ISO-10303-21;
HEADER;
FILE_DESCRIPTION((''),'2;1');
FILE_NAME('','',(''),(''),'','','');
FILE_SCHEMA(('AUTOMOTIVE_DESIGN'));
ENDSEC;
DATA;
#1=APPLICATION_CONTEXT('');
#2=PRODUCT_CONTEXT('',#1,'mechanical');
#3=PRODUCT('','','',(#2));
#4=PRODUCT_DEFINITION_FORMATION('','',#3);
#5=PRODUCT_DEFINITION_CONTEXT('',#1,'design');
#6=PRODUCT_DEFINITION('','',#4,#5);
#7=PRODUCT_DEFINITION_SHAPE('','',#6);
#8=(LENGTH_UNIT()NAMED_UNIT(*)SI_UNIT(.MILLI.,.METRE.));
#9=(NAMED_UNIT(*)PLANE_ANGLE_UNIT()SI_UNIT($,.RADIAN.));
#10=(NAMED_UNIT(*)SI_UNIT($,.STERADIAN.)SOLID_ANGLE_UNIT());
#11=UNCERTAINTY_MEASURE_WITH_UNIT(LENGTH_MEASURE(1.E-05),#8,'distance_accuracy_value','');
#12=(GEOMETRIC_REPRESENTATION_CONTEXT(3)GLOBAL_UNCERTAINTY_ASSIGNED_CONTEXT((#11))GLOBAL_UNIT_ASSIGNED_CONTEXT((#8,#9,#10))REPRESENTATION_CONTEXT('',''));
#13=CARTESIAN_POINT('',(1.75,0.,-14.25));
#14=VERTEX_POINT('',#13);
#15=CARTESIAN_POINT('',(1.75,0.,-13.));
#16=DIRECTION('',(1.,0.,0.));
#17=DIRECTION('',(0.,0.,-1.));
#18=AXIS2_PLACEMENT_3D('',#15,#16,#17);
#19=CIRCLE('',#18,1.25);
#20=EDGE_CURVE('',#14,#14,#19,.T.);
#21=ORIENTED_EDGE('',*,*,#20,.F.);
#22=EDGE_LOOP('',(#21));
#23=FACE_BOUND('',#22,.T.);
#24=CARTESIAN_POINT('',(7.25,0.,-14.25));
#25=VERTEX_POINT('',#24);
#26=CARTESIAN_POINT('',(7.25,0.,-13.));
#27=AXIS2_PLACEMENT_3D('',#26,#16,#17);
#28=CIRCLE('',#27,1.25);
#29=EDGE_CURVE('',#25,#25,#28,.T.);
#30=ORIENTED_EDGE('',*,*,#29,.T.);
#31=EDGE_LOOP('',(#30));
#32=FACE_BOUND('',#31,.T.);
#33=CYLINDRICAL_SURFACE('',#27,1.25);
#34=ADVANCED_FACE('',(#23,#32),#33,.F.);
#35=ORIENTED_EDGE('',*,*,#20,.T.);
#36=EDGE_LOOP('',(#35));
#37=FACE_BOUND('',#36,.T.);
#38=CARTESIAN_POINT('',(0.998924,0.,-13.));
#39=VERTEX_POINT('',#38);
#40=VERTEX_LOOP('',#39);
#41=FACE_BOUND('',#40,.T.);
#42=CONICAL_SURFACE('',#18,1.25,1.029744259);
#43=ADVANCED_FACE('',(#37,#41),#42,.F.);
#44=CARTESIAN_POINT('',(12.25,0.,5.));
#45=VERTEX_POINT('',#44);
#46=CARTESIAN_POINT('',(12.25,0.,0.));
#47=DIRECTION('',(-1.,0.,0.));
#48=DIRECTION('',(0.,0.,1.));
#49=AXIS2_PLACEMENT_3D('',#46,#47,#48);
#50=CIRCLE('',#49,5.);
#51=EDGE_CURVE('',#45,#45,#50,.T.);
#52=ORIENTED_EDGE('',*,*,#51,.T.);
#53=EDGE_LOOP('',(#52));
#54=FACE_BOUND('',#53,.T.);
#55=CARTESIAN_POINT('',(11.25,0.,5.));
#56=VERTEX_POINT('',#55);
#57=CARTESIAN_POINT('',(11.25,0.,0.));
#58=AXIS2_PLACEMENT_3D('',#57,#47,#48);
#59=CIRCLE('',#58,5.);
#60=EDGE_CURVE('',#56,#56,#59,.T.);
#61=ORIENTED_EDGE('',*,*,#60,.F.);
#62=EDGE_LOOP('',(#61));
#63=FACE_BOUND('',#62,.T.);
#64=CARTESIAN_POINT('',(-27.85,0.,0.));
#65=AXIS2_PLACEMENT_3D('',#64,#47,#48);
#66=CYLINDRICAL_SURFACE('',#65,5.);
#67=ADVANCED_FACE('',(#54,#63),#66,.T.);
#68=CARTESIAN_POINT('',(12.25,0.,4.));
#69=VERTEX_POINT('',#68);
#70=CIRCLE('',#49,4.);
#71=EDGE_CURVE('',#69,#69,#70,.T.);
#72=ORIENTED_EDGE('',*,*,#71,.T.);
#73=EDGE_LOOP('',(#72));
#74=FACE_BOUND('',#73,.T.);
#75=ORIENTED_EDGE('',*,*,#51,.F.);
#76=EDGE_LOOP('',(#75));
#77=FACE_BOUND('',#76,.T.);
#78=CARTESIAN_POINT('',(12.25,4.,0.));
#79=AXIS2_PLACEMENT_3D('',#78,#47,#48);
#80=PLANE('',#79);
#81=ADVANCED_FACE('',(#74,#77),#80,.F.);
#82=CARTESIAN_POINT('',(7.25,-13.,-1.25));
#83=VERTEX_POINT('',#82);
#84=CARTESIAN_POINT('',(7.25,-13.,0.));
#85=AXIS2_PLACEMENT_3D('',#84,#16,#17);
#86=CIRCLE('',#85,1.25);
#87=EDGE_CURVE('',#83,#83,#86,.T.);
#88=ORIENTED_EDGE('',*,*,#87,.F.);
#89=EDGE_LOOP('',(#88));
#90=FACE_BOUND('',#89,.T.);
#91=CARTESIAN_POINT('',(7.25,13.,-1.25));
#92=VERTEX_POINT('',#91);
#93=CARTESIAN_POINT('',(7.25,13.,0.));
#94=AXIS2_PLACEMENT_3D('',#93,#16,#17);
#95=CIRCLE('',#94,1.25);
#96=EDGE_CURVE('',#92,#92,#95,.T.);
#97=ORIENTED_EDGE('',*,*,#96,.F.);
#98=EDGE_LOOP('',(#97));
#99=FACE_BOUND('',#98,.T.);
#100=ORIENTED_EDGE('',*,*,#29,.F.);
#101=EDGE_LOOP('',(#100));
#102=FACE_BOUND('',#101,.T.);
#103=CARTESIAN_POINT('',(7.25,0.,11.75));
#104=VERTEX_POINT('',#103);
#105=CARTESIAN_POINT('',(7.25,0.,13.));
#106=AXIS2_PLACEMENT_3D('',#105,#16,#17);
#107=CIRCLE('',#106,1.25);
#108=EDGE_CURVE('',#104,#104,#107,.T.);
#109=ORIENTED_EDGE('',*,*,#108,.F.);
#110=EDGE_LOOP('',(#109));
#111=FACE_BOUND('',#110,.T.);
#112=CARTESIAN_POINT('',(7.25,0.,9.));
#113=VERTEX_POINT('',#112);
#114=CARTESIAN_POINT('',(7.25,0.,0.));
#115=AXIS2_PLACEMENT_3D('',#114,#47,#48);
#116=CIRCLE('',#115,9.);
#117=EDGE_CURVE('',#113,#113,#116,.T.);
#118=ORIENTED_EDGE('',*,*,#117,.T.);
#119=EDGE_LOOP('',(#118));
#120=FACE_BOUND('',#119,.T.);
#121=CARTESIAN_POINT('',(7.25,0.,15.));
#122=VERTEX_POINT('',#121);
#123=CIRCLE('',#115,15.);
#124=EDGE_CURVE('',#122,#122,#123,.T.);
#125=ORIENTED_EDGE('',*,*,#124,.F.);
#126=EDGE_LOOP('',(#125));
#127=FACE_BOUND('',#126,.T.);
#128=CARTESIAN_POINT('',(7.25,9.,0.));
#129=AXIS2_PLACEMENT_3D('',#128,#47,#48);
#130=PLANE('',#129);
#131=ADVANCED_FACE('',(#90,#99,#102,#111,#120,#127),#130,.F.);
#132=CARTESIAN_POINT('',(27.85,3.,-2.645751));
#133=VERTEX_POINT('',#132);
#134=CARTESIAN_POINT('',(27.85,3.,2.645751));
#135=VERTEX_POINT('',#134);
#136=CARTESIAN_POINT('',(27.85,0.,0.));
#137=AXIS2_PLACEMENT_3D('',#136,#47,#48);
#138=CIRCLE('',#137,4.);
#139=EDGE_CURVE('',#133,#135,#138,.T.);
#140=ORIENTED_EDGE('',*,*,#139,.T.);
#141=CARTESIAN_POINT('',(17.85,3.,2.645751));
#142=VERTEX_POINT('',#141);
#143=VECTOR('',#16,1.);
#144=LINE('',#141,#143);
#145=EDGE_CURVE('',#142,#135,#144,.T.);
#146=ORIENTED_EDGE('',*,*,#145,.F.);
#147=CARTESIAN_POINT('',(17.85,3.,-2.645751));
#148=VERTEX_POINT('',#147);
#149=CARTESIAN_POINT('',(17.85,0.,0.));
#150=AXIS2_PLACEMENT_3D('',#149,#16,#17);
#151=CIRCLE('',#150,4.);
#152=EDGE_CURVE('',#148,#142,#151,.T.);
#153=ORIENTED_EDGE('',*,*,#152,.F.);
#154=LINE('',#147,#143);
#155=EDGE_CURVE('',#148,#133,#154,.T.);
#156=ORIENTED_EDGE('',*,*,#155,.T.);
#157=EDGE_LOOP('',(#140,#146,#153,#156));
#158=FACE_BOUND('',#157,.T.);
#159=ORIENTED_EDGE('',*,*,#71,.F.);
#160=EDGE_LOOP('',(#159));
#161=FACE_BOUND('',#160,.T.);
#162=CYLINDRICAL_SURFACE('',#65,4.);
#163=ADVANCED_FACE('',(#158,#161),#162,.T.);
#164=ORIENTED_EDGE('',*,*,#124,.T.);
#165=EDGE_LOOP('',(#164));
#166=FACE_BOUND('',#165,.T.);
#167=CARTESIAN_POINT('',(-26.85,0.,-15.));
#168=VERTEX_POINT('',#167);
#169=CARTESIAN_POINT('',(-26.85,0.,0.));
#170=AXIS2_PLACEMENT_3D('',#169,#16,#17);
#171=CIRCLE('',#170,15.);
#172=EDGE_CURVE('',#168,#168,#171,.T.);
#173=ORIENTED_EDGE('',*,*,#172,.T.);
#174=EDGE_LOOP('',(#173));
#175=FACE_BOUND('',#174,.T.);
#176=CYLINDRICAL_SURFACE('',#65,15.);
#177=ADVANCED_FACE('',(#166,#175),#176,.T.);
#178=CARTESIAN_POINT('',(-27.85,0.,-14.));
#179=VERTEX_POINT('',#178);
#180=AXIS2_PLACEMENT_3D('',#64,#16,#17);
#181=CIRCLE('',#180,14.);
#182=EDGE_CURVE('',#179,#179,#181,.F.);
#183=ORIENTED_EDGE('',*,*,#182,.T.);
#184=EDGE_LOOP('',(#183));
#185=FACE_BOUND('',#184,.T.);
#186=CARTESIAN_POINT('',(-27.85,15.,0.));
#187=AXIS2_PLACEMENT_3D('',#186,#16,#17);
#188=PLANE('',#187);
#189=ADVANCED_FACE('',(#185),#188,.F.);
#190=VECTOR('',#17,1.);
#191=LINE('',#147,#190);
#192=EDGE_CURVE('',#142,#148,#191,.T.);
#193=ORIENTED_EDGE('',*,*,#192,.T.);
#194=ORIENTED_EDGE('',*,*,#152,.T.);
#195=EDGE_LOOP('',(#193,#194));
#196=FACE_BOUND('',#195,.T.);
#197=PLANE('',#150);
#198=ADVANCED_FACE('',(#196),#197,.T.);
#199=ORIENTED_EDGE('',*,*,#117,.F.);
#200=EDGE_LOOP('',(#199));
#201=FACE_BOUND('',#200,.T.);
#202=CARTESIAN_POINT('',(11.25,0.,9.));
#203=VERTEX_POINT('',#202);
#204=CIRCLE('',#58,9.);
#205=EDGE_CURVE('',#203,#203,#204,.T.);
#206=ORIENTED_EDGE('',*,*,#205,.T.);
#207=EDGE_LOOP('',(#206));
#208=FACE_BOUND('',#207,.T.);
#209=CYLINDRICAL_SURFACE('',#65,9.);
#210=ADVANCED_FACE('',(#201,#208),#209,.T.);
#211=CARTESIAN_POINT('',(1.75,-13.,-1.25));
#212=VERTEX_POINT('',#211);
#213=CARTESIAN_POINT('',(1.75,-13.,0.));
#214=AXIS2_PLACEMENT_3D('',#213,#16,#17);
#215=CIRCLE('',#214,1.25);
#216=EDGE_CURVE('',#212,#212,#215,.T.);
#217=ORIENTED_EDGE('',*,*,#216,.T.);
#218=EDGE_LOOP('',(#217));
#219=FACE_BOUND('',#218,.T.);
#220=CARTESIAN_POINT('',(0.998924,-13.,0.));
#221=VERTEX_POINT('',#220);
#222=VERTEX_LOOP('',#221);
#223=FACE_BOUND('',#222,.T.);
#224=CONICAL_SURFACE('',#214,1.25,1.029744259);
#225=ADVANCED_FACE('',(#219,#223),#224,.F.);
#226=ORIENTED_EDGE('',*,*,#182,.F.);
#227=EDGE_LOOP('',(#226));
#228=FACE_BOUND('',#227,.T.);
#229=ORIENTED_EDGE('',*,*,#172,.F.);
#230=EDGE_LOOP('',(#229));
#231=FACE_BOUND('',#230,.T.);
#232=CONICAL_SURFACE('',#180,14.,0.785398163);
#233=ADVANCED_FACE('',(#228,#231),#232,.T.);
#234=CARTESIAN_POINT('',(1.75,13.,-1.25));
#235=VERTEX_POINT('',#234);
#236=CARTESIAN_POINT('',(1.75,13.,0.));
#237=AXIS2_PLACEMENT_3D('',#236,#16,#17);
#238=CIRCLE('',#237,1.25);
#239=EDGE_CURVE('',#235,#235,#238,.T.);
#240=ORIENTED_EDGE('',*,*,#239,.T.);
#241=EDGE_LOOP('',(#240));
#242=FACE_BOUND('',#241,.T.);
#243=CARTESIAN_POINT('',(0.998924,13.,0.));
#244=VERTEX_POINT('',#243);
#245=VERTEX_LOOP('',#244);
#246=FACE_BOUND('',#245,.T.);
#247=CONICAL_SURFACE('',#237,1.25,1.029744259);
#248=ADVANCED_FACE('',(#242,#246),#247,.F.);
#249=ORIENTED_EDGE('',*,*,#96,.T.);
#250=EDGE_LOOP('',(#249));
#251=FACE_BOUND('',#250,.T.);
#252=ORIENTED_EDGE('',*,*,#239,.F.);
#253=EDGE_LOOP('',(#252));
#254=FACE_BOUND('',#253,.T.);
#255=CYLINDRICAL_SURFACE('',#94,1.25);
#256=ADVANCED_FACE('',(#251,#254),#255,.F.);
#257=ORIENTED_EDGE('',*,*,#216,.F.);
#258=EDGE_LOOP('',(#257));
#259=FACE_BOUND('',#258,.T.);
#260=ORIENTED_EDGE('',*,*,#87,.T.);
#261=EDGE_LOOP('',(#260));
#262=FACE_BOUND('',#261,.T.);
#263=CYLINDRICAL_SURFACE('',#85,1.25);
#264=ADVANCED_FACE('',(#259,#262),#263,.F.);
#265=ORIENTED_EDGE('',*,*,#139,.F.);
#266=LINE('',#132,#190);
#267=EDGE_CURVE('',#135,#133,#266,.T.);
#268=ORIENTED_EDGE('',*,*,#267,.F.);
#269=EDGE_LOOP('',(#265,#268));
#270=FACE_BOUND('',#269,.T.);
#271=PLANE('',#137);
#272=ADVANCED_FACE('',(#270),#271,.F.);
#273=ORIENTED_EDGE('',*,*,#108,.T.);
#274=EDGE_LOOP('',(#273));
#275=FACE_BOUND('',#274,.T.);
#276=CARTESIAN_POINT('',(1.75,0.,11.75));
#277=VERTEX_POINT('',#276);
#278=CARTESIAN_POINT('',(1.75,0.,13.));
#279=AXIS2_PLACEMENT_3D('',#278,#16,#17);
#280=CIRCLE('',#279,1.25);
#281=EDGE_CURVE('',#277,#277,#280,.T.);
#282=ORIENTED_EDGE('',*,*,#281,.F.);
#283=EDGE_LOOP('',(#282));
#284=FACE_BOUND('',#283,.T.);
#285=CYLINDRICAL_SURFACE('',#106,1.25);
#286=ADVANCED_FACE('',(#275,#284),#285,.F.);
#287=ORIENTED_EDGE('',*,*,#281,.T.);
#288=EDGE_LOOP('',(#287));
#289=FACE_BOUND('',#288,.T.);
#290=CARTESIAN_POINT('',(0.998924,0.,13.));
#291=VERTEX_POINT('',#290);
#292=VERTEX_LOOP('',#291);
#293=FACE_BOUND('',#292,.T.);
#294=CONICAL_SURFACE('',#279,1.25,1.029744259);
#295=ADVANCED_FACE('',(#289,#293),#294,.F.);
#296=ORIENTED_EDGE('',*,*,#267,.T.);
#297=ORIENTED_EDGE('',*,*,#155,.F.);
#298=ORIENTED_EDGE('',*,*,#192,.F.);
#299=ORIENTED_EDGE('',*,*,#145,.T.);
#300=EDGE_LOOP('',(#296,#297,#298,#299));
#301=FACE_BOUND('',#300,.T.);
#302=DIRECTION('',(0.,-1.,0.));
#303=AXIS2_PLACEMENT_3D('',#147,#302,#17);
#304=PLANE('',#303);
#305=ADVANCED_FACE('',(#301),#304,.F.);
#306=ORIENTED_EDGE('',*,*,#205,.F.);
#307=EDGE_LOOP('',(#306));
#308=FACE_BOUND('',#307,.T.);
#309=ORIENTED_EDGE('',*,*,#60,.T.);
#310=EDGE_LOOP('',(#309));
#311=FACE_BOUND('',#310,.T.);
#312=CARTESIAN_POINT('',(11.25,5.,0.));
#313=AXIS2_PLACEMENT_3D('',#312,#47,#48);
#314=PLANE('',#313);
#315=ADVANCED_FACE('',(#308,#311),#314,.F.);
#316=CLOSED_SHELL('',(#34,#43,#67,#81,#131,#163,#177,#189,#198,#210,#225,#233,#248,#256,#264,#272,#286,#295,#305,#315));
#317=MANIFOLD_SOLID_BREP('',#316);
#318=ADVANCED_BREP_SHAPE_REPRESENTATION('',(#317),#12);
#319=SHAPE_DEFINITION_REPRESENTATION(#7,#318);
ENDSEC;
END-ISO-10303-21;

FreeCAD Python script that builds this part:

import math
import FreeCAD as App
import Part
import Sketcher

V = App.Vector
Q = App.Units.Quantity


def edges_at(feature, points):
    """Names of the edges that pass closest to the given points."""
    edges = feature.Shape.Edges
    near = lambda p: min(range(len(edges)), key=lambda i: edges[i].distToShape(Part.Vertex(*p))[0])
    return sorted({f"Edge{near(p) + 1}" for p in points})

doc = App.newDocument("Part")
params = doc.addObject("Spreadsheet::Sheet", "Params")
for row, (alias, value) in enumerate([
    ("sketch1_width", "1 mm"),
    ("sketch1_width2", "4 mm"),
    ("sketch1_height", "6 mm"),
    ("sketch1_width3", "15.6 mm"),
    ("sketch1_width4", "35.1 mm"),
    ("revolution_angle", "360 deg"),
    ("sketch2_radius", "4 mm"),
    ("pocket1_length", "10 mm"),
    ("sketch3_width", "5.5 mm"),
    ("sketch3_height", "1.25 mm"),
    ("groove_angle", "360 deg"),
    ("chamfer_size", "1 mm"),
], start=1):
    params.set(f"A{row}", alias)
    params.set(f"B{row}", "=" + value)
    params.setAlias(f"B{row}", alias)

body = doc.addObject("PartDesign::Body", "Body")

sketch1 = body.newObject("Sketcher::SketchObject", "Sketch")
sketch1.AttachmentSupport = (doc.getObject("XY_Plane"), [""])
sketch1.MapMode = "FlatFace"
sketch1.addGeometry([
    Part.LineSegment(V(27.9, 0, 0), V(27.9, 4, 0)),
    Part.LineSegment(V(27.9, 4, 0), V(12.2, 4, 0)),
    Part.LineSegment(V(12.2, 4, 0), V(12.2, 5, 0)),
    Part.LineSegment(V(12.2, 5, 0), V(11.2, 5, 0)),
    Part.LineSegment(V(11.2, 5, 0), V(11.2, 9, 0)),
    Part.LineSegment(V(11.2, 9, 0), V(7.2, 9, 0)),
    Part.LineSegment(V(7.2, 9, 0), V(7.2, 15, 0)),
    Part.LineSegment(V(7.2, 15, 0), V(-27.9, 15, 0)),
    Part.LineSegment(V(-27.9, 15, 0), V(-27.9, 0, 0)),
    Part.LineSegment(V(-27.9, 0, 0), V(27.9, 0, 0)),
], False)
sketch1.addConstraint([
    Sketcher.Constraint("Coincident", 0, 2, 1, 1),
    Sketcher.Constraint("Coincident", 1, 2, 2, 1),
    Sketcher.Constraint("Coincident", 2, 2, 3, 1),
    Sketcher.Constraint("Coincident", 3, 2, 4, 1),
    Sketcher.Constraint("Coincident", 4, 2, 5, 1),
    Sketcher.Constraint("Coincident", 5, 2, 6, 1),
    Sketcher.Constraint("Coincident", 6, 2, 7, 1),
    Sketcher.Constraint("Coincident", 7, 2, 8, 1),
    Sketcher.Constraint("Coincident", 8, 2, 9, 1),
    Sketcher.Constraint("Coincident", 9, 2, 0, 1),
    Sketcher.Constraint("Vertical", 0),
    Sketcher.Constraint("Horizontal", 1),
    Sketcher.Constraint("Vertical", 2),
    Sketcher.Constraint("Horizontal", 3),
    Sketcher.Constraint("Vertical", 4),
    Sketcher.Constraint("Horizontal", 5),
    Sketcher.Constraint("Vertical", 6),
    Sketcher.Constraint("Horizontal", 7),
    Sketcher.Constraint("Vertical", 8),
    Sketcher.Constraint("Horizontal", 9),
    Sketcher.Constraint("Symmetric", 8, 2, 9, 2, -1, 1),
    Sketcher.Constraint("Equal", 5, 0),
    Sketcher.Constraint("Equal", 3, 2),
    Sketcher.Constraint("Equal", 0, 4),
    Sketcher.Constraint("DistanceX", 3, 2, 3, 1, Q("1 mm")),
    Sketcher.Constraint("DistanceX", 5, 2, 5, 1, Q("4 mm")),
    Sketcher.Constraint("DistanceY", 6, 1, 6, 2, Q("6 mm")),
    Sketcher.Constraint("DistanceX", 1, 2, 1, 1, Q("15.6 mm")),
    Sketcher.Constraint("DistanceX", 7, 2, 7, 1, Q("35.1 mm")),
])
sketch1.setExpression("Constraints[24]", "Params.sketch1_width")
sketch1.setExpression("Constraints[25]", "Params.sketch1_width2")
sketch1.setExpression("Constraints[26]", "Params.sketch1_height")
sketch1.setExpression("Constraints[27]", "Params.sketch1_width3")
sketch1.setExpression("Constraints[28]", "Params.sketch1_width4")
revolution = body.newObject("PartDesign::Revolution", "Revolution")
revolution.Profile = sketch1
revolution.ReferenceAxis = (sketch1, ["H_Axis"])
revolution.setExpression("Angle", "Params.revolution_angle")

sketch2 = body.newObject("Sketcher::SketchObject", "Sketch001")
sketch2.AttachmentSupport = (doc.getObject("YZ_Plane"), [""])
sketch2.MapMode = "FlatFace"
sketch2.AttachmentOffset = App.Placement(V(0, 0, 27.85), App.Rotation())
sketch2.addGeometry([
    Part.LineSegment(V(3, 2.6, 0), V(3, -2.6, 0)),
    Part.ArcOfCircle(Part.Circle(V(0, 0, 0), V(0, 0, 1), 4), math.radians(-41), math.radians(41)),
], False)
sketch2.addConstraint([
    Sketcher.Constraint("Coincident", 0, 1, 1, 2),
    Sketcher.Constraint("Coincident", 1, 1, 0, 2),
    Sketcher.Constraint("Vertical", 0),
    Sketcher.Constraint("Coincident", 1, 3, -1, 1),
    Sketcher.Constraint("Radius", 1, Q("4 mm")),
    Sketcher.Constraint("DistanceX", -1, 1, 0, 1, Q("3 mm")),
])
sketch2.setExpression("Constraints[4]", "Params.sketch2_radius")
pocket1 = body.newObject("PartDesign::Pocket", "Pocket")
pocket1.Profile = sketch2
pocket1.setExpression("Length", "Params.pocket1_length")

sketch3 = body.newObject("Sketcher::SketchObject", "Sketch002")
sketch3.AttachmentSupport = (doc.getObject("XZ_Plane"), [""])
sketch3.MapMode = "FlatFace"
sketch3.AttachmentOffset = App.Placement(V(0, 0, -13), App.Rotation())
sketch3.addGeometry([
    Part.LineSegment(V(1, 0, 0), V(7.2, 0, 0)),
    Part.LineSegment(V(7.2, 0, 0), V(7.2, -1.2, 0)),
    Part.LineSegment(V(7.2, -1.2, 0), V(1.8, -1.2, 0)),
    Part.LineSegment(V(1.8, -1.2, 0), V(1, 0, 0)),
], False)
sketch3.addConstraint([
    Sketcher.Constraint("Coincident", 0, 2, 1, 1),
    Sketcher.Constraint("Coincident", 1, 2, 2, 1),
    Sketcher.Constraint("Coincident", 2, 2, 3, 1),
    Sketcher.Constraint("Coincident", 3, 2, 0, 1),
    Sketcher.Constraint("Horizontal", 0),
    Sketcher.Constraint("Vertical", 1),
    Sketcher.Constraint("Horizontal", 2),
    Sketcher.Constraint("PointOnObject", 0, 2, -1),
    Sketcher.Constraint("Angle", 3, Q("121 deg")),
    Sketcher.Constraint("DistanceX", 2, 2, 2, 1, Q("5.5 mm")),
    Sketcher.Constraint("DistanceY", 1, 2, 1, 1, Q("1.25 mm")),
    Sketcher.Constraint("DistanceX", -1, 1, 0, 2, Q("7.25 mm")),
])
sketch3.setExpression("Constraints[9]", "Params.sketch3_width")
sketch3.setExpression("Constraints[10]", "Params.sketch3_height")
groove = body.newObject("PartDesign::Groove", "Groove")
groove.Profile = sketch3
groove.ReferenceAxis = (sketch3, ["H_Axis"])
groove.setExpression("Angle", "Params.groove_angle")
doc.recompute()

polarpattern = body.newObject("PartDesign::PolarPattern", "PolarPattern")
polarpattern.Originals = [groove]
polarpattern.Axis = (doc.getObject("X_Axis"), [""])
polarpattern.Angle = 360
polarpattern.Occurrences = 4
body.Tip = polarpattern
doc.recompute()

chamfer = body.newObject("PartDesign::Chamfer", "Chamfer")
chamfer.Base = (polarpattern, edges_at(polarpattern, [(-27.85, -15, 0)]))
chamfer.setExpression("Size", "Params.chamfer_size")

doc.recompute()
